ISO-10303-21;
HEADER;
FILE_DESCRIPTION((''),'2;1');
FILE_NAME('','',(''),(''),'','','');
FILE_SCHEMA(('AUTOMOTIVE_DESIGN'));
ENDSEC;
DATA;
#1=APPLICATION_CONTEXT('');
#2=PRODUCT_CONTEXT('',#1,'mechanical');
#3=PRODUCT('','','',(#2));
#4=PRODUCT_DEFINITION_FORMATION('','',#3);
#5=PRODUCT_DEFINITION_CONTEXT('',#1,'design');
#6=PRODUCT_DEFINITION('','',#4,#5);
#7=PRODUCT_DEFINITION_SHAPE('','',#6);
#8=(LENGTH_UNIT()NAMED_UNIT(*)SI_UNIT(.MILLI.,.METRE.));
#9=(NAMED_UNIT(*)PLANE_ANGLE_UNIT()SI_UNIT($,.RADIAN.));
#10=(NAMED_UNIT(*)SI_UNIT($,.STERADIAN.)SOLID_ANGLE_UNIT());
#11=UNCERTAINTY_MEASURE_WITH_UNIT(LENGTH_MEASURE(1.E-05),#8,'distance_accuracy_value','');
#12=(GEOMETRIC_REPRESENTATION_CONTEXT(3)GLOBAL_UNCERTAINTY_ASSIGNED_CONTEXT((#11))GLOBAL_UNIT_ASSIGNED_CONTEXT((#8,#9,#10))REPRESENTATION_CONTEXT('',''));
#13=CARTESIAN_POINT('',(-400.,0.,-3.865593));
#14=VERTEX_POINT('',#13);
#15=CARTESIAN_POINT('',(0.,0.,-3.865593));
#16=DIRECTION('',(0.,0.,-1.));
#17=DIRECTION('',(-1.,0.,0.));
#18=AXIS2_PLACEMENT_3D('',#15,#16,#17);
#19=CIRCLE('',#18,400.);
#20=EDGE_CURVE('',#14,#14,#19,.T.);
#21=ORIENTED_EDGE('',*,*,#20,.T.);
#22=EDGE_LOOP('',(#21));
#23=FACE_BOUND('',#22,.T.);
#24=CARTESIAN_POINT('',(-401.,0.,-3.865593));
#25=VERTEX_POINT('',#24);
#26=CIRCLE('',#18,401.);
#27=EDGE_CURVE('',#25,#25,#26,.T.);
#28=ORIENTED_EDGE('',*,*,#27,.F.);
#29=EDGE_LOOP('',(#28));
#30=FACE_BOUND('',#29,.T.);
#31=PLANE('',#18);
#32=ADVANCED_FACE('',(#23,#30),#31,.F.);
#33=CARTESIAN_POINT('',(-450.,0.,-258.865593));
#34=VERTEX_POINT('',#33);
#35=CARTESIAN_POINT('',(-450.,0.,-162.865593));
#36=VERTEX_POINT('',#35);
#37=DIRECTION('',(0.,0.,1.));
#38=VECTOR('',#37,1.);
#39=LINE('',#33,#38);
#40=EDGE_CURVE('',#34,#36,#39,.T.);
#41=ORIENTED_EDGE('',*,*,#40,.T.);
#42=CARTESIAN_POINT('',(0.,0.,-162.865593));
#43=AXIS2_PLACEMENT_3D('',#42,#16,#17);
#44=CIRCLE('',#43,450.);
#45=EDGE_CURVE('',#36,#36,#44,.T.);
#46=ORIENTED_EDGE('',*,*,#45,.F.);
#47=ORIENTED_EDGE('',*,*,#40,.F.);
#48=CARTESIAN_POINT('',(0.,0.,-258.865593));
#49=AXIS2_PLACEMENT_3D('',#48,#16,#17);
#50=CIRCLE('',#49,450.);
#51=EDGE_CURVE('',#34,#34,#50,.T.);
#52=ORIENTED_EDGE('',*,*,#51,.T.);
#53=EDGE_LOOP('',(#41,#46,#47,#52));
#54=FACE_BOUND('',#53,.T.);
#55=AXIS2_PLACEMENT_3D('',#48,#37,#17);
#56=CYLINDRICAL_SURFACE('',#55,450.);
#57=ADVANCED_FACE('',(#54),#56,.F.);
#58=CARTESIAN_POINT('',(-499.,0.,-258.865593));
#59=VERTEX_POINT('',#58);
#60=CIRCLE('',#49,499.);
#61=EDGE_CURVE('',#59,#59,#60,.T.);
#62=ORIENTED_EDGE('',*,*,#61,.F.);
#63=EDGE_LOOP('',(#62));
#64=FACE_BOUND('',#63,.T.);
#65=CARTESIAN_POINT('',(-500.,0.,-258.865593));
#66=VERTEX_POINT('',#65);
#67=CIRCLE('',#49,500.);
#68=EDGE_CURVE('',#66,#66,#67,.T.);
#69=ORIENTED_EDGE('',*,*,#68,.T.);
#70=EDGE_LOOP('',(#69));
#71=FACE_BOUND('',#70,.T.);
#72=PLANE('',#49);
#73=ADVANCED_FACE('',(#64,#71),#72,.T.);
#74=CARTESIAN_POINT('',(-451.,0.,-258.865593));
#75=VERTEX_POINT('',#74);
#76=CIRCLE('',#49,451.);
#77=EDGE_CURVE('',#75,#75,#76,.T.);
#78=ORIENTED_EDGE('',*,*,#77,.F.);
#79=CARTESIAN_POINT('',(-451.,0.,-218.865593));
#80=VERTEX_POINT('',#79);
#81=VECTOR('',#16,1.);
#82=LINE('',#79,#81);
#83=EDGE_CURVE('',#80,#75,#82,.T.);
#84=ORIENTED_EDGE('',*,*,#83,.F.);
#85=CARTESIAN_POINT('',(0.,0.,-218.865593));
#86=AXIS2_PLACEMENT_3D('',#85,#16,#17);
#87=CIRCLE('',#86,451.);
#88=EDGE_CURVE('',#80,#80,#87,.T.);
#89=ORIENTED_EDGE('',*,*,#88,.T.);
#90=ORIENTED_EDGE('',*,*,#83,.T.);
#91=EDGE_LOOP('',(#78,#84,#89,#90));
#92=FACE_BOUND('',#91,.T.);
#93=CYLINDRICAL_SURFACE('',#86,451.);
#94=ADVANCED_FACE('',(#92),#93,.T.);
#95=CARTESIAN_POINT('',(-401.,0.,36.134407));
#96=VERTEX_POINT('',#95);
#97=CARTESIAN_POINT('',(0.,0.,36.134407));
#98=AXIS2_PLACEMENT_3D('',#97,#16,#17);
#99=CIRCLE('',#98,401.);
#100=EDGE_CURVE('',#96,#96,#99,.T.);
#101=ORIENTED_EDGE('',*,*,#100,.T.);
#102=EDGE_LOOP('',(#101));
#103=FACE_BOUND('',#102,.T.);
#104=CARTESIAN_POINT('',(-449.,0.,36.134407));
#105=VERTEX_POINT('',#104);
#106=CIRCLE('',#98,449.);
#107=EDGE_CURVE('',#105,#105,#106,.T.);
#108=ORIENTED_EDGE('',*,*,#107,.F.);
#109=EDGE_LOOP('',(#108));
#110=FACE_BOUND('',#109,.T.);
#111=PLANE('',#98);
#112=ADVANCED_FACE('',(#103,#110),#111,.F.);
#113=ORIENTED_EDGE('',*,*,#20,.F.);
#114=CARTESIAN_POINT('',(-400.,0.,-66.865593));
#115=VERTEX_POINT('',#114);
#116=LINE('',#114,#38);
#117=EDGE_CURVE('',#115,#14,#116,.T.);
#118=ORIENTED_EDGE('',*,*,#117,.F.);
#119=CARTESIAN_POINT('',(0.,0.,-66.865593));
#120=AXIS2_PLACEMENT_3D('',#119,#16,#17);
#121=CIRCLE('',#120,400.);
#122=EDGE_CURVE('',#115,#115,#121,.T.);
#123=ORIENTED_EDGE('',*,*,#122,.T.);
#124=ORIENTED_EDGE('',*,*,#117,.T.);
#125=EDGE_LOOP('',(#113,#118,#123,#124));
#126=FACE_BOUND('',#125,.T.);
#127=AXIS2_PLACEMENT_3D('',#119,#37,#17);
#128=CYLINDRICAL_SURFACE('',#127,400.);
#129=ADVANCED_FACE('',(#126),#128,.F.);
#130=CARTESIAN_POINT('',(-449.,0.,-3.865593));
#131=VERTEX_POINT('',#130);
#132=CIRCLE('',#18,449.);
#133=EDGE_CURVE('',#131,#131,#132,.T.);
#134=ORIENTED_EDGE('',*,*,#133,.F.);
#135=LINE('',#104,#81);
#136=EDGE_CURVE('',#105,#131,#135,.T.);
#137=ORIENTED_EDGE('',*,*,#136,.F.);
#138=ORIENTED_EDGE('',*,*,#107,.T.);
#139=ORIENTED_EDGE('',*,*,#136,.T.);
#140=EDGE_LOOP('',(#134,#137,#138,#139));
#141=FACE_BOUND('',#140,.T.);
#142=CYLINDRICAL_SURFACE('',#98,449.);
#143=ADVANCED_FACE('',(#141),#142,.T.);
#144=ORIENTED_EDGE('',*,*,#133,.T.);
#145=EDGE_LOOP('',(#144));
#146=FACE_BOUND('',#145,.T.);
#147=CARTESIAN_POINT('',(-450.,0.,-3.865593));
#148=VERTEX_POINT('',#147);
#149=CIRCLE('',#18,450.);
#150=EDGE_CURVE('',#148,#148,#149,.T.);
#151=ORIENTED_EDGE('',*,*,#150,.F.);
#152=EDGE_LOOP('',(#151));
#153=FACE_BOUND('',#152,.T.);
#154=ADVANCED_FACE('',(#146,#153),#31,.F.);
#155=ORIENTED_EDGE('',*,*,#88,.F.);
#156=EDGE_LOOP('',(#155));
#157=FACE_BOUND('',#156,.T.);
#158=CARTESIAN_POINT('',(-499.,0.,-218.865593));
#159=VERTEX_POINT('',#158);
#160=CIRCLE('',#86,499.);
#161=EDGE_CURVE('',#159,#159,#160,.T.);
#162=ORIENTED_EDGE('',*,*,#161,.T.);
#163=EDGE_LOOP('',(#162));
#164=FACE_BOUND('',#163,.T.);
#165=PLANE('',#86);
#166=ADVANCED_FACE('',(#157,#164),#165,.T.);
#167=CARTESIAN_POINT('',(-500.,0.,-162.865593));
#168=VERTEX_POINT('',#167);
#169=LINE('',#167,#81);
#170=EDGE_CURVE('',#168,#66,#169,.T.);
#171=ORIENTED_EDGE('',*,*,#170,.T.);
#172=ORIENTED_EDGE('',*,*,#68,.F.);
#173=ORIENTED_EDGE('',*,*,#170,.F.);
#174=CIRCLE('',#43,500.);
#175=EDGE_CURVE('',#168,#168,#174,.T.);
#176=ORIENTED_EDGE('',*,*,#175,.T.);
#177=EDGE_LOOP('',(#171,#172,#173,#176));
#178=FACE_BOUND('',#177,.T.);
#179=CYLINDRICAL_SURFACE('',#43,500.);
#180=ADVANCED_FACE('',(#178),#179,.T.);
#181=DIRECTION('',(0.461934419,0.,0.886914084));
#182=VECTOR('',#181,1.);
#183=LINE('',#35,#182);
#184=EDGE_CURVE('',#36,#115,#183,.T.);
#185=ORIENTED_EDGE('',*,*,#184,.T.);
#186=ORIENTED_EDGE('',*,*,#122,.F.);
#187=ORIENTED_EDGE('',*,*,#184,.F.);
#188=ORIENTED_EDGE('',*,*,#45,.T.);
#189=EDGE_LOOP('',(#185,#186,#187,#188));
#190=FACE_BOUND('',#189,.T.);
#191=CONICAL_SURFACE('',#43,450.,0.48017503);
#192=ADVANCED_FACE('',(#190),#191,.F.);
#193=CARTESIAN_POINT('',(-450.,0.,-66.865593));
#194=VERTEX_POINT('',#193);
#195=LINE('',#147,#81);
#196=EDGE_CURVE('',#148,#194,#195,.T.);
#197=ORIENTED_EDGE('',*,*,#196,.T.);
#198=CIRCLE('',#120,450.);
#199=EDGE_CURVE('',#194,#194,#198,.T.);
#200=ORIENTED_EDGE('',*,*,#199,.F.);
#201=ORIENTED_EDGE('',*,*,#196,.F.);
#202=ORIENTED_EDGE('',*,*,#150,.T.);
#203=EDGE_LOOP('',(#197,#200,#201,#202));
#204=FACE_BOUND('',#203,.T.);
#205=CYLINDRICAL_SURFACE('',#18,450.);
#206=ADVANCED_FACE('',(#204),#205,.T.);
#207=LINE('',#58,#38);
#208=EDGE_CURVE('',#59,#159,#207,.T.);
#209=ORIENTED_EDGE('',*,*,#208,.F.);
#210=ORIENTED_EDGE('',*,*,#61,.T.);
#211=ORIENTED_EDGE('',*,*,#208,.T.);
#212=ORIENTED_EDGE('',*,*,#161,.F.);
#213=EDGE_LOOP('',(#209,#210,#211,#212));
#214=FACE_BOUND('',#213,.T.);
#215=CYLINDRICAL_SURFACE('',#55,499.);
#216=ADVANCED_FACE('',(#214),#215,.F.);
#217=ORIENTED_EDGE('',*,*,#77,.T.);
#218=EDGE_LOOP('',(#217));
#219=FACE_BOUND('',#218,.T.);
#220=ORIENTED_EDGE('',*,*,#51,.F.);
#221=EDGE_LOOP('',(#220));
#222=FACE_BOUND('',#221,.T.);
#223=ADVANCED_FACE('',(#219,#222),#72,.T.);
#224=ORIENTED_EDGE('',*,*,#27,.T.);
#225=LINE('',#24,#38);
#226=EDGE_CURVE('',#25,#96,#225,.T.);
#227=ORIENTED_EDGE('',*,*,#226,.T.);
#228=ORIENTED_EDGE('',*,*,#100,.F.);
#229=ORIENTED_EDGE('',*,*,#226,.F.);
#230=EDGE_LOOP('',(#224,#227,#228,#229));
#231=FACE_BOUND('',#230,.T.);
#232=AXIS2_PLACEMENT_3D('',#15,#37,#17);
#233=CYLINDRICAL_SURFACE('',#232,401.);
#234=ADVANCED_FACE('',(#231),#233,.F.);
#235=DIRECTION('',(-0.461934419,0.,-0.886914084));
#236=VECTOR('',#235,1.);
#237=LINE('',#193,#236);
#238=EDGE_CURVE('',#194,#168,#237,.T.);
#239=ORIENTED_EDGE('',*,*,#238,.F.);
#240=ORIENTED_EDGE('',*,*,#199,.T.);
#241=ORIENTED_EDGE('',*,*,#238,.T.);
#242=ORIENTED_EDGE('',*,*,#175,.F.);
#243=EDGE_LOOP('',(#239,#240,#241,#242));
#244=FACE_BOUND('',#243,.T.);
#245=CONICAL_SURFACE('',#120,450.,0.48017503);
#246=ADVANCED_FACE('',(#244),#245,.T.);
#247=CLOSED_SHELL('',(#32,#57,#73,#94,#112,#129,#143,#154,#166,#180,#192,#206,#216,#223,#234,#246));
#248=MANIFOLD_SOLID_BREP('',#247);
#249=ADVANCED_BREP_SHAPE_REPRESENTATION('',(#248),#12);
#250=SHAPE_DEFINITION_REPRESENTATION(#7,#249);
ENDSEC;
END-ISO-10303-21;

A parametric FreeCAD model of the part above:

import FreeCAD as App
import Part
import Sketcher
Q = App.Units.Quantity

doc = App.newDocument("Part")
body = doc.addObject("PartDesign::Body", "Body")

sketch1 = body.newObject("Sketcher::SketchObject", "Sketch")
sketch1.AttachmentSupport = (doc.getObject("XZ_Plane"), [""])
sketch1.MapMode = "FlatFace"
sketch1.addGeometry([
    Part.LineSegment(App.Vector(-451, -258.9, 0), App.Vector(-450, -258.9, 0)),
    Part.LineSegment(App.Vector(-450, -258.9, 0), App.Vector(-450, -162.9, 0)),
    Part.LineSegment(App.Vector(-450, -162.9, 0), App.Vector(-400, -66.9, 0)),
    Part.LineSegment(App.Vector(-400, -66.9, 0), App.Vector(-400, -3.9, 0)),
    Part.LineSegment(App.Vector(-400, -3.9, 0), App.Vector(-401, -3.9, 0)),
    Part.LineSegment(App.Vector(-401, -3.9, 0), App.Vector(-401, 36.1, 0)),
    Part.LineSegment(App.Vector(-401, 36.1, 0), App.Vector(-449, 36.1, 0)),
    Part.LineSegment(App.Vector(-449, 36.1, 0), App.Vector(-449, -3.9, 0)),
    Part.LineSegment(App.Vector(-449, -3.9, 0), App.Vector(-450, -3.9, 0)),
    Part.LineSegment(App.Vector(-450, -3.9, 0), App.Vector(-450, -66.9, 0)),
    Part.LineSegment(App.Vector(-450, -66.9, 0), App.Vector(-500, -162.9, 0)),
    Part.LineSegment(App.Vector(-500, -162.9, 0), App.Vector(-500, -258.9, 0)),
    Part.LineSegment(App.Vector(-500, -258.9, 0), App.Vector(-499, -258.9, 0)),
    Part.LineSegment(App.Vector(-499, -258.9, 0), App.Vector(-499, -218.9, 0)),
    Part.LineSegment(App.Vector(-499, -218.9, 0), App.Vector(-451, -218.9, 0)),
    Part.LineSegment(App.Vector(-451, -218.9, 0), App.Vector(-451, -258.9, 0)),
], False)
sketch1.addConstraint([
    Sketcher.Constraint("Coincident", 0, 2, 1, 1),
    Sketcher.Constraint("Coincident", 1, 2, 2, 1),
    Sketcher.Constraint("Coincident", 2, 2, 3, 1),
    Sketcher.Constraint("Coincident", 3, 2, 4, 1),
    Sketcher.Constraint("Coincident", 4, 2, 5, 1),
    Sketcher.Constraint("Coincident", 5, 2, 6, 1),
    Sketcher.Constraint("Coincident", 6, 2, 7, 1),
    Sketcher.Constraint("Coincident", 7, 2, 8, 1),
    Sketcher.Constraint("Coincident", 8, 2, 9, 1),
    Sketcher.Constraint("Coincident", 9, 2, 10, 1),
    Sketcher.Constraint("Coincident", 10, 2, 11, 1),
    Sketcher.Constraint("Coincident", 11, 2, 12, 1),
    Sketcher.Constraint("Coincident", 12, 2, 13, 1),
    Sketcher.Constraint("Coincident", 13, 2, 14, 1),
    Sketcher.Constraint("Coincident", 14, 2, 15, 1),
    Sketcher.Constraint("Coincident", 15, 2, 0, 1),
    Sketcher.Constraint("Horizontal", 0),
    Sketcher.Constraint("Vertical", 1),
    Sketcher.Constraint("Vertical", 3),
    Sketcher.Constraint("Horizontal", 4),
    Sketcher.Constraint("Vertical", 5),
    Sketcher.Constraint("Horizontal", 6),
    Sketcher.Constraint("Vertical", 7),
    Sketcher.Constraint("Horizontal", 8),
    Sketcher.Constraint("Vertical", 9),
    Sketcher.Constraint("Vertical", 11),
    Sketcher.Constraint("Horizontal", 12),
    Sketcher.Constraint("Vertical", 13),
    Sketcher.Constraint("Horizontal", 14),
    Sketcher.Constraint("Vertical", 15),
    Sketcher.Constraint("Parallel", 2, 10),
    Sketcher.Constraint("Horizontal", 4, 2, 7, 2),
    Sketcher.Constraint("Horizontal", 2, 2, 9, 2),
    Sketcher.Constraint("Horizontal", 1, 2, 10, 2),
    Sketcher.Constraint("Horizontal", 0, 2, 11, 2),
    Sketcher.Constraint("Vertical", 1, 2, 8, 2),
    Sketcher.Constraint("Equal", 0, 4),
    Sketcher.Constraint("Equal", 4, 8),
    Sketcher.Constraint("Equal", 8, 12),
    Sketcher.Constraint("Equal", 7, 13),
    Sketcher.Constraint("DistanceX", 0, 1, 0, 2, Q("1 mm")),
    Sketcher.Constraint("DistanceX", 6, 2, 6, 1, Q("48 mm")),
    Sketcher.Constraint("DistanceY", 1, 1, 1, 2, Q("96 mm")),
    Sketcher.Constraint("DistanceY", 3, 1, 3, 2, Q("63 mm")),
    Sketcher.Constraint("DistanceY", 5, 1, 5, 2, Q("40 mm")),
    Sketcher.Constraint("DistanceX", 0, 2, -1, 1, Q("450 mm")),
    Sketcher.Constraint("DistanceY", 1, 2, 2, 2, Q("96 mm")),
    Sketcher.Constraint("DistanceY", 0, 2, -1, 1, Q("258.865593 mm")),
])
revolution = body.newObject("PartDesign::Revolution", "Revolution")
revolution.Profile = sketch1
revolution.ReferenceAxis = (sketch1, ["V_Axis"])
revolution.Angle = 360

doc.recompute()
